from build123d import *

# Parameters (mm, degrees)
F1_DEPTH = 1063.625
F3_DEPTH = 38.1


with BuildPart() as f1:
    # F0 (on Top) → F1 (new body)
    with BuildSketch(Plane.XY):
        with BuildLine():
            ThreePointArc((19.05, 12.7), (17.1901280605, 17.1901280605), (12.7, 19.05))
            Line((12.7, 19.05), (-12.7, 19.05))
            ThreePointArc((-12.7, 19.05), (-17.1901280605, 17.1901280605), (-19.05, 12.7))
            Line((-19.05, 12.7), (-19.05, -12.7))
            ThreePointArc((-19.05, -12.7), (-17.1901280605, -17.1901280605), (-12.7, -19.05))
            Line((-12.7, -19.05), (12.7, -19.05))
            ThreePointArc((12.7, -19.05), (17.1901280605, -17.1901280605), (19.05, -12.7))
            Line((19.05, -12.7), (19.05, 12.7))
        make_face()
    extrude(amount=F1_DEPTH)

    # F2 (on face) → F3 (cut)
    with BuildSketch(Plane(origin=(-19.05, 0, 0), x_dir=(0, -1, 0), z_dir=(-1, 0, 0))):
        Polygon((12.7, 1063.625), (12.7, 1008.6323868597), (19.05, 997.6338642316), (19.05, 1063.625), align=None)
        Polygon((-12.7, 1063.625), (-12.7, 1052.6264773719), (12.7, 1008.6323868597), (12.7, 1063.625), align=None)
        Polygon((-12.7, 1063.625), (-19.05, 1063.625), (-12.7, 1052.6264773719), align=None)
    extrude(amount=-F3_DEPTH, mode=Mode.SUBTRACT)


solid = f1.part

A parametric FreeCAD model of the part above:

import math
import FreeCAD as App
import Part
import Sketcher

V = App.Vector
Q = App.Units.Quantity


def add_polygon(sketch, points):
    """Adds a closed chain of lines whose ends are joined by coincident constraints."""
    first, n = sketch.GeometryCount, len(points)
    for a, b in zip(points, points[1:] + points[:1]):
        sketch.addGeometry(Part.LineSegment(App.Vector(*a, 0), App.Vector(*b, 0)), False)
    for i in range(n):
        sketch.addConstraint(Sketcher.Constraint("Coincident", first + i, 2, first + (i + 1) % n, 1))

doc = App.newDocument("Part")
params = doc.addObject("Spreadsheet::Sheet", "Params")
for row, (alias, value) in enumerate([
    ("sketch1_width", "1 in"),
    ("sketch1_radius", "0.25 in"),
    ("pad1_length", "41.875 in"),
    ("sketch2_length", "2 in"),
    ("sketch2_width", "1.5 in"),
    ("pocket1_length", "1.5 in"),
], start=1):
    params.set(f"A{row}", alias)
    params.set(f"B{row}", "=" + value)
    params.setAlias(f"B{row}", alias)

body = doc.addObject("PartDesign::Body", "Body")

# Sketch on XY plane
sketch1 = doc.addObject("Sketcher::SketchObject", "Sketch")
body.addObject(sketch1)
sketch1.AttachmentSupport = (doc.XY_Plane, [""])
sketch1.MapMode = "FlatFace"
sketch1.addGeometry(Part.ArcOfCircle(Part.Circle(V(13, 13, 0), V(0, 0, 1), 6), math.radians(0), math.radians(90)), False)
sketch1.addGeometry(Part.LineSegment(V(13, 19, 0), V(-13, 19, 0)), False)
sketch1.addGeometry(Part.ArcOfCircle(Part.Circle(V(-13, 13, 0), V(0, 0, 1), 6), math.radians(90), math.radians(180)), False)
sketch1.addGeometry(Part.LineSegment(V(-19, 13, 0), V(-19, -13, 0)), False)
sketch1.addGeometry(Part.ArcOfCircle(Part.Circle(V(-13, -13, 0), V(0, 0, 1), 6), math.radians(180), math.radians(270)), False)
sketch1.addGeometry(Part.LineSegment(V(-13, -19, 0), V(13, -19, 0)), False)
sketch1.addGeometry(Part.ArcOfCircle(Part.Circle(V(13, -13, 0), V(0, 0, 1), 6), math.radians(-90), math.radians(0)), False)
sketch1.addGeometry(Part.LineSegment(V(19, -13, 0), V(19, 13, 0)), False)
sketch1.addConstraint(Sketcher.Constraint("Tangent", 0, 2, 1, 1))
sketch1.addConstraint(Sketcher.Constraint("Tangent", 1, 2, 2, 1))
sketch1.addConstraint(Sketcher.Constraint("Tangent", 2, 2, 3, 1))
sketch1.addConstraint(Sketcher.Constraint("Tangent", 3, 2, 4, 1))
sketch1.addConstraint(Sketcher.Constraint("Tangent", 4, 2, 5, 1))
sketch1.addConstraint(Sketcher.Constraint("Tangent", 5, 2, 6, 1))
sketch1.addConstraint(Sketcher.Constraint("Tangent", 6, 2, 7, 1))
sketch1.addConstraint(Sketcher.Constraint("Tangent", 7, 2, 0, 1))
sketch1.addConstraint(Sketcher.Constraint("Horizontal", 1))
sketch1.addConstraint(Sketcher.Constraint("Vertical", 3))
sketch1.addConstraint(Sketcher.Constraint("Horizontal", 5))
sketch1.addConstraint(Sketcher.Constraint("Vertical", 7))
sketch1.addConstraint(Sketcher.Constraint("Equal", 0, 2))
sketch1.addConstraint(Sketcher.Constraint("Equal", 2, 4))
sketch1.addConstraint(Sketcher.Constraint("Equal", 4, 6))
sketch1.addConstraint(Sketcher.Constraint("Symmetric", 0, 3, 4, 3, -1, 1))
sketch1.addConstraint(Sketcher.Constraint("Equal", 5, 3))
sketch1.addConstraint(Sketcher.Constraint("DistanceX", 1, 2, 1, 1, Q("1 in")))
sketch1.addConstraint(Sketcher.Constraint("Radius", 0, Q("0.25 in")))
sketch1.setExpression("Constraints[17]", "Params.sketch1_width")
sketch1.setExpression("Constraints[18]", "Params.sketch1_radius")
pad1 = doc.addObject("PartDesign::Pad", "Pad")
body.addObject(pad1)
pad1.Profile = sketch1
pad1.setExpression("Length", "Params.pad1_length")

# Sketch on YZ plane
sketch2 = doc.addObject("Sketcher::SketchObject", "Sketch001")
body.addObject(sketch2)
sketch2.AttachmentSupport = (doc.YZ_Plane, [""])
sketch2.MapMode = "FlatFace"
sketch2.AttachmentOffset = App.Placement(V(0, 0, -0.75 * 25.4), App.Rotation())
add_polygon(sketch2, [(-13, 1009), (-19, 998), (-19, 1064), (19, 1064), (13, 1053)])  # lines 0-4
sketch2.addConstraint(Sketcher.Constraint("Vertical", 1))
sketch2.addConstraint(Sketcher.Constraint("Horizontal", 2))
sketch2.addConstraint(Sketcher.Constraint("Parallel", 0, 3))
sketch2.addConstraint(Sketcher.Constraint("Parallel", 3, 4))
sketch2.addConstraint(Sketcher.Constraint("Equal", 0, 3))
sketch2.addConstraint(Sketcher.Constraint("Distance", 4, Q("2 in")))
sketch2.addConstraint(Sketcher.Constraint("DistanceX", 2, 1, 2, 2, Q("1.5 in")))
sketch2.addConstraint(Sketcher.Constraint("Angle", 0, Q("-120 deg")))
sketch2.addConstraint(Sketcher.Constraint("DistanceX", -1, 1, 3, 2, Q("0.5 in")))
sketch2.addConstraint(Sketcher.Constraint("DistanceY", -1, 1, 1, 2, Q("41.875 in")))
sketch2.setExpression("Constraints[10]", "Params.sketch2_length")
sketch2.setExpression("Constraints[11]", "Params.sketch2_width")
pocket1 = doc.addObject("PartDesign::Pocket", "Pocket")
body.addObject(pocket1)
pocket1.Profile = sketch2
pocket1.setExpression("Length", "Params.pocket1_length")
pocket1.Reversed = True

doc.recompute()
